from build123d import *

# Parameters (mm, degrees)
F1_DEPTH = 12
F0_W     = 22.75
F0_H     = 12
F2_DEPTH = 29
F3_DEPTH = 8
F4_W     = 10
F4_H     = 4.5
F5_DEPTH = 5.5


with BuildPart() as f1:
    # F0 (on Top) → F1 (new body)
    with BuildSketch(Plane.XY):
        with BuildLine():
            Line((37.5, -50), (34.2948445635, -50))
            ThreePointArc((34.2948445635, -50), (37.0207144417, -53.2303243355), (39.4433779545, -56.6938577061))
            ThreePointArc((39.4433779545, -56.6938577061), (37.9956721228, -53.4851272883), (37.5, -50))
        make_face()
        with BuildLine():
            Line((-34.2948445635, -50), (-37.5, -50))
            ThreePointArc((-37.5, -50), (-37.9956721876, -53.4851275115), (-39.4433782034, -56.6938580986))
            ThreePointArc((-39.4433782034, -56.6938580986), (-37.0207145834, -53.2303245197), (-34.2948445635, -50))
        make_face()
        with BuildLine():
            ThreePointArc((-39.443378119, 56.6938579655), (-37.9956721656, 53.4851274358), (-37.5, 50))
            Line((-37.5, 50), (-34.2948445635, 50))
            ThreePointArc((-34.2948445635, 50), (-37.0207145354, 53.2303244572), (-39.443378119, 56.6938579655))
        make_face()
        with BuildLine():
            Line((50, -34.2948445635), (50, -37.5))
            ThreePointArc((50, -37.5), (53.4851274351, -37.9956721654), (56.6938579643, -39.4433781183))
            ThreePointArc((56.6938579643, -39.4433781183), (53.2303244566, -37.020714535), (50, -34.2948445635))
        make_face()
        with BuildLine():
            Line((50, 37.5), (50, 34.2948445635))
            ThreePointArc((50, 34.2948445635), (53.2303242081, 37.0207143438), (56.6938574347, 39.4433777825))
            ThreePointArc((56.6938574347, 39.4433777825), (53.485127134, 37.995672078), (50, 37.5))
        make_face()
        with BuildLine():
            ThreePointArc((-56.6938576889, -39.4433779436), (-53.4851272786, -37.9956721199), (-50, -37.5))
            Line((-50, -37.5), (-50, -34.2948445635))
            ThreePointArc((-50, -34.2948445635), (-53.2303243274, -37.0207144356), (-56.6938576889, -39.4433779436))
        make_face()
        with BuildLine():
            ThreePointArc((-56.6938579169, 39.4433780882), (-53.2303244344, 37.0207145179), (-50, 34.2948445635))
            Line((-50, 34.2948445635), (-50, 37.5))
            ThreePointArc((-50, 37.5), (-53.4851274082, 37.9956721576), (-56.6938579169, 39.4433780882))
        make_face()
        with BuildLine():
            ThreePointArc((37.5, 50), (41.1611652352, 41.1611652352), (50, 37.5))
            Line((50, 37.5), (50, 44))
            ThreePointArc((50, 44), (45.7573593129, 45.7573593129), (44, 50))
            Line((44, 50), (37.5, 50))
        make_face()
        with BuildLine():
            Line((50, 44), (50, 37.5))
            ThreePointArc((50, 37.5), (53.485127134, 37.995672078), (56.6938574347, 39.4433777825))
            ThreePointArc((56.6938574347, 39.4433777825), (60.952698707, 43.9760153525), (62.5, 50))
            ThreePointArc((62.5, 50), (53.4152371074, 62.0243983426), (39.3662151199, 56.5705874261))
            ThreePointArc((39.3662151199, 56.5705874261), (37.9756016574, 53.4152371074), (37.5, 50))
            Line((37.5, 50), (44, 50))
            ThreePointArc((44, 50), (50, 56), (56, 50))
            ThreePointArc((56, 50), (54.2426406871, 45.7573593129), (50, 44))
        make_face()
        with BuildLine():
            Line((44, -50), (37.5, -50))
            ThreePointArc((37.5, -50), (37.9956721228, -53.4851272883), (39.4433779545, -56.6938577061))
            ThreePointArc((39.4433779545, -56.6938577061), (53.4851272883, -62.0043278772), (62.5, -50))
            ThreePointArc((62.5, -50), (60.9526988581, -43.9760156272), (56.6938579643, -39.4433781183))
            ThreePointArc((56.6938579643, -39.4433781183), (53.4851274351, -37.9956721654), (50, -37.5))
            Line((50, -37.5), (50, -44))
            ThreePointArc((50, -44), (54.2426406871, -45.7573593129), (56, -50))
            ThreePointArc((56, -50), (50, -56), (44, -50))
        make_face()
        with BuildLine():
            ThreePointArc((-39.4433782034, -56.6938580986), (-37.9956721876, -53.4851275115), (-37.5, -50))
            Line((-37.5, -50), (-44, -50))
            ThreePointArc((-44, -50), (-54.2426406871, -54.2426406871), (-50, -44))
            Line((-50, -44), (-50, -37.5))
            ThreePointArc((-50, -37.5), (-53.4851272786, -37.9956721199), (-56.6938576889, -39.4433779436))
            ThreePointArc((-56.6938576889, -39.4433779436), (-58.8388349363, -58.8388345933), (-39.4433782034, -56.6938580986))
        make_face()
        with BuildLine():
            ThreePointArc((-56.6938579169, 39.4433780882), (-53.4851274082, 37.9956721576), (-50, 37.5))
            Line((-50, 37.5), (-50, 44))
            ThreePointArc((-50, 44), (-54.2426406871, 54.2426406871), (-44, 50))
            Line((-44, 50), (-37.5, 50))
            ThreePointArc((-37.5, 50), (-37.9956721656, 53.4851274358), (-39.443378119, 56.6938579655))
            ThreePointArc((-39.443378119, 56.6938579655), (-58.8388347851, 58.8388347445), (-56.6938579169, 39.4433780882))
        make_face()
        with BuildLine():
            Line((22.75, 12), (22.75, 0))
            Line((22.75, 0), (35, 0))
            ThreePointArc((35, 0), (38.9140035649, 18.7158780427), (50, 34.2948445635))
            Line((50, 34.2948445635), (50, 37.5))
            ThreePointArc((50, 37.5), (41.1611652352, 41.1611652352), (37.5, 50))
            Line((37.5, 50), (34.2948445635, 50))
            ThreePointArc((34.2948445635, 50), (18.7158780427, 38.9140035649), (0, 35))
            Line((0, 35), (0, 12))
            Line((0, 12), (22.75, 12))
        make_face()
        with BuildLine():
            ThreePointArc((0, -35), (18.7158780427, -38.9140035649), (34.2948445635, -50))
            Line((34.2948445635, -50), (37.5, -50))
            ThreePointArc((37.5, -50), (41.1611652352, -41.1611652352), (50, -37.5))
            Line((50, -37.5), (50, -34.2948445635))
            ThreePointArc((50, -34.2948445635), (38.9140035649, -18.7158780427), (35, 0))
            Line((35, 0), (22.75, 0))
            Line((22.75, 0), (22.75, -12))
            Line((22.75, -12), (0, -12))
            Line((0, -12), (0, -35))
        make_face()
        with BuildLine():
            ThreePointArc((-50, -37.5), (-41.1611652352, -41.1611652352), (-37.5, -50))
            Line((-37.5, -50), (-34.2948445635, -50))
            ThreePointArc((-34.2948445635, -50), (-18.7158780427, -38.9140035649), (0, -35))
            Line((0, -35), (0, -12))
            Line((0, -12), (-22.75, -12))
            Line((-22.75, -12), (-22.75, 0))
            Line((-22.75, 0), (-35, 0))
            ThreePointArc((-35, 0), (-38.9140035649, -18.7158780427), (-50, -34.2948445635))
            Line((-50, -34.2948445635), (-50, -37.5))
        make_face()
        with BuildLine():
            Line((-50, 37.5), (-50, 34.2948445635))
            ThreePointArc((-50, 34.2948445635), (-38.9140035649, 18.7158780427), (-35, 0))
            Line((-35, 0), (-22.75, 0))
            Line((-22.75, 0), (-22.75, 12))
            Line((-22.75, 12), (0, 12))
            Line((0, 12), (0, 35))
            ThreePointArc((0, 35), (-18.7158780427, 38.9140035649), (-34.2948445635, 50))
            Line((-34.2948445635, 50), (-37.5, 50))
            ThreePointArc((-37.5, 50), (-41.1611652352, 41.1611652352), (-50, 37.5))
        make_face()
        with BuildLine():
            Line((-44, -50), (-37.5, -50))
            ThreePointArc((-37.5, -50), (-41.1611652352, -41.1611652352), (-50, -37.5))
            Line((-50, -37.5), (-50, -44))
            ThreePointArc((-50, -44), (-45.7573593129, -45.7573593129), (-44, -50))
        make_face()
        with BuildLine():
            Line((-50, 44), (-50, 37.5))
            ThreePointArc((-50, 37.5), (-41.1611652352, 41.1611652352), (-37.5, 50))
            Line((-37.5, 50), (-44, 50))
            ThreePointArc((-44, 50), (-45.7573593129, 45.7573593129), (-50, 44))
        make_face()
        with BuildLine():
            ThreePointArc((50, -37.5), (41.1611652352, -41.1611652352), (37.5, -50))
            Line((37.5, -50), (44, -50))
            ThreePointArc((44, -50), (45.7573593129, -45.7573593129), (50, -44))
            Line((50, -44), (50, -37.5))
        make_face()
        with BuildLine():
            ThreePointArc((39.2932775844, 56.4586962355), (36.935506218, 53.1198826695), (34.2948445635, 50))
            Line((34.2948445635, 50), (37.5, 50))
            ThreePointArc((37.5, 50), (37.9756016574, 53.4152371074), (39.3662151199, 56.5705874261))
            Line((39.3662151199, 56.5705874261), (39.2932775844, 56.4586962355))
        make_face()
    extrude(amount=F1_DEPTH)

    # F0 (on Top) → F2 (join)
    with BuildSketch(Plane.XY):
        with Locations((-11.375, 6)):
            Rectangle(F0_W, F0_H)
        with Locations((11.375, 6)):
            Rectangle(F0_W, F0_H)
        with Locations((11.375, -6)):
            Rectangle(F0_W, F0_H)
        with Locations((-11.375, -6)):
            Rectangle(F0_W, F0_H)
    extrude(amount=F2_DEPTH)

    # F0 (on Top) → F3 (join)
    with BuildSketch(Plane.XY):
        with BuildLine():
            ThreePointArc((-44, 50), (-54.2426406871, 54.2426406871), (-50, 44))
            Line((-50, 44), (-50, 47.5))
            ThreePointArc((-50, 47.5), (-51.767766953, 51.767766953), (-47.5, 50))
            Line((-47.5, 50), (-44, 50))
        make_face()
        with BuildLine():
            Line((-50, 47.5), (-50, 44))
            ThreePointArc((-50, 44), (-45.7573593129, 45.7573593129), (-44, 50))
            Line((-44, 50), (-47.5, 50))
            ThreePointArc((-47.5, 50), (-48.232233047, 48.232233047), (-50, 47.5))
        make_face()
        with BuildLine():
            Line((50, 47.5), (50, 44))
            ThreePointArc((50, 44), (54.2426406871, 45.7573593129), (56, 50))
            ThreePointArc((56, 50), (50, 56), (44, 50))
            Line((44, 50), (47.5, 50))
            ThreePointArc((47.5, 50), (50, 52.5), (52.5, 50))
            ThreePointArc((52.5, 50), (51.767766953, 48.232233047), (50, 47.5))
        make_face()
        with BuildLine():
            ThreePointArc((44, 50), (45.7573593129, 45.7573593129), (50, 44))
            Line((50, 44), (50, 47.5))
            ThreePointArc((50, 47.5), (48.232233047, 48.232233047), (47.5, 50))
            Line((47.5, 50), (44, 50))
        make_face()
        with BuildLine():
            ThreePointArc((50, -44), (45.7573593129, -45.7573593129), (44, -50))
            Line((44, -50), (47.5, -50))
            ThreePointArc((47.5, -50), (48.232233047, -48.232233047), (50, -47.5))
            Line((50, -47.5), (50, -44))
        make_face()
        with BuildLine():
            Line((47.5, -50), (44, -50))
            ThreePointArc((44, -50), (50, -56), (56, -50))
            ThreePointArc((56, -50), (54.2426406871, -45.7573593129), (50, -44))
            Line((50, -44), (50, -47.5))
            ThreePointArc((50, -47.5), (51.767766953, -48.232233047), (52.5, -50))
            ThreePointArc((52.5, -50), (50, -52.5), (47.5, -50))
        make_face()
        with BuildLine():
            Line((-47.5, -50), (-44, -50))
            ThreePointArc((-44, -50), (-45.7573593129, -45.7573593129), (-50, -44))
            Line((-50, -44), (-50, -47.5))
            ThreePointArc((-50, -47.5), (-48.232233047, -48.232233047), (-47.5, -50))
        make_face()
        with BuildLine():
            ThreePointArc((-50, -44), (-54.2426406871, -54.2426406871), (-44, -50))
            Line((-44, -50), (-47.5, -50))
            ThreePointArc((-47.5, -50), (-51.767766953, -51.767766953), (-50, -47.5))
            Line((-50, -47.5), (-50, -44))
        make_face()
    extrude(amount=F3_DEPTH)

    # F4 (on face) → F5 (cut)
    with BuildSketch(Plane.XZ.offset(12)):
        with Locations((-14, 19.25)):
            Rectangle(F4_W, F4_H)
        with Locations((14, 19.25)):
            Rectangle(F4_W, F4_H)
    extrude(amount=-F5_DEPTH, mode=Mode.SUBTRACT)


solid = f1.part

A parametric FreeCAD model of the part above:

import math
import FreeCAD as App
import Part
import Sketcher
Q = App.Units.Quantity

doc = App.newDocument("Part")
params = doc.addObject("Spreadsheet::Sheet", "Params")
for row, (alias, value) in enumerate([
    ("sketch1_radius", "6 mm"),
    ("sketch1_radius2", "12.5 mm"),
    ("sketch1_height", "24 mm"),
    ("sketch1_width", "45.5 mm"),
    ("pad1_length", "12 mm"),
    ("sketch2_height", "24 mm"),
    ("sketch2_width", "45.5 mm"),
    ("pad2_length", "29 mm"),
    ("sketch3_radius", "6 mm"),
    ("sketch3_radius2", "2.5 mm"),
    ("pad3_length", "8 mm"),
    ("sketch4_width", "10 mm"),
    ("sketch4_height", "4.5 mm"),
    ("pocket1_length", "5.5 mm"),
], start=1):
    params.set(f"A{row}", alias)
    params.set(f"B{row}", "=" + value)
    params.setAlias(f"B{row}", alias)

body = doc.addObject("PartDesign::Body", "Body")

sketch1 = body.newObject("Sketcher::SketchObject", "Sketch")
sketch1.AttachmentSupport = (doc.getObject("XY_Plane"), [""])
sketch1.MapMode = "FlatFace"
sketch1.addGeometry(Part.ArcOfCircle(Part.Circle(App.Vector(0, -81.7, 0), App.Vector(0, 0, 1), 46.7), math.radians(32.38), math.radians(42.75)), False)
sketch1.addGeometry(Part.ArcOfCircle(Part.Circle(App.Vector(50, -50, 0), App.Vector(0, 0, 1), 12.5), math.radians(-148), math.radians(0)), False)
sketch1.addGeometry(Part.ArcOfCircle(Part.Circle(App.Vector(50, -50, 0), App.Vector(0, 0, 1), 12.5), math.radians(0), math.radians(58)), False)
sketch1.addGeometry(Part.ArcOfCircle(Part.Circle(App.Vector(81.7, 0, 0), App.Vector(0, 0, 1), 46.7), math.radians(-132.75), math.radians(-122.38)), False)
sketch1.addGeometry(Part.ArcOfCircle(Part.Circle(App.Vector(81.7, 0, 0), App.Vector(0, 0, 1), 46.7), math.radians(180), math.radians(227)), False)
sketch1.addGeometry(Part.ArcOfCircle(Part.Circle(App.Vector(81.7, 0, 0), App.Vector(0, 0, 1), 46.7), math.radians(133), math.radians(180)), False)
sketch1.addGeometry(Part.ArcOfCircle(Part.Circle(App.Vector(81.7, 0, 0), App.Vector(0, 0, 1), 46.7), math.radians(122.38), math.radians(132.75)), False)
sketch1.addGeometry(Part.ArcOfCircle(Part.Circle(App.Vector(50, 50, 0), App.Vector(0, 0, 1), 12.5), math.radians(-58), math.radians(0)), False)
sketch1.addGeometry(Part.ArcOfCircle(Part.Circle(App.Vector(50, 50, 0), App.Vector(0, 0, 1), 12.5), math.radians(0), math.radians(148)), False)
sketch1.addGeometry(Part.LineSegment(App.Vector(39.37, 56.57, 0), App.Vector(39.29, 56.46, 0)), False)
sketch1.addGeometry(Part.ArcOfCircle(Part.Circle(App.Vector(0, 81.7, 0), App.Vector(0, 0, 1), 46.7), math.radians(-42.75), math.radians(-32.72)), False)
sketch1.addGeometry(Part.ArcOfCircle(Part.Circle(App.Vector(0, 81.7, 0), App.Vector(0, 0, 1), 46.7), math.radians(-90), math.radians(-43)), False)
sketch1.addGeometry(Part.ArcOfCircle(Part.Circle(App.Vector(0, 81.7, 0), App.Vector(0, 0, 1), 46.7), math.radians(-137), math.radians(-90)), False)
sketch1.addGeometry(Part.ArcOfCircle(Part.Circle(App.Vector(0, 81.7, 0), App.Vector(0, 0, 1), 46.7), math.radians(-147.62), math.radians(-137.25)), False)
sketch1.addGeometry(Part.ArcOfCircle(Part.Circle(App.Vector(-50, 50, 0), App.Vector(0, 0, 1), 12.5), math.radians(32), math.radians(238)), False)
sketch1.addGeometry(Part.ArcOfCircle(Part.Circle(App.Vector(-81.7, 0, 0), App.Vector(0, 0, 1), 46.7), math.radians(47.25), math.radians(57.62)), False)
sketch1.addGeometry(Part.ArcOfCircle(Part.Circle(App.Vector(-81.7, 0, 0), App.Vector(0, 0, 1), 46.7), math.radians(0), math.radians(47)), False)
sketch1.addGeometry(Part.ArcOfCircle(Part.Circle(App.Vector(-81.7, 0, 0), App.Vector(0, 0, 1), 46.7), math.radians(-47), math.radians(0)), False)
sketch1.addGeometry(Part.ArcOfCircle(Part.Circle(App.Vector(-81.7, 0, 0), App.Vector(0, 0, 1), 46.7), math.radians(-57.62), math.radians(-47.25)), False)
sketch1.addGeometry(Part.ArcOfCircle(Part.Circle(App.Vector(-50, -50, 0), App.Vector(0, 0, 1), 12.5), math.radians(122), math.radians(328)), False)
sketch1.addGeometry(Part.ArcOfCircle(Part.Circle(App.Vector(0, -81.7, 0), App.Vector(0, 0, 1), 46.7), math.radians(137.25), math.radians(147.62)), False)
sketch1.addGeometry(Part.ArcOfCircle(Part.Circle(App.Vector(0, -81.7, 0), App.Vector(0, 0, 1), 46.7), math.radians(90), math.radians(137)), False)
sketch1.addGeometry(Part.ArcOfCircle(Part.Circle(App.Vector(0, -81.7, 0), App.Vector(0, 0, 1), 46.7), math.radians(43), math.radians(90)), False)
sketch1.addGeometry(Part.LineSegment(App.Vector(22.75, 12, 0), App.Vector(22.75, -12, 0)), False)
sketch1.addGeometry(Part.LineSegment(App.Vector(22.75, -12, 0), App.Vector(-22.75, -12, 0)), False)
sketch1.addGeometry(Part.LineSegment(App.Vector(-22.75, -12, 0), App.Vector(-22.75, 12, 0)), False)
sketch1.addGeometry(Part.LineSegment(App.Vector(-22.75, 12, 0), App.Vector(22.75, 12, 0)), False)
sketch1.addGeometry(Part.ArcOfCircle(Part.Circle(App.Vector(50, -50, 0), App.Vector(0, 0, 1), 6), math.radians(0), math.radians(90)), False)
sketch1.addGeometry(Part.ArcOfCircle(Part.Circle(App.Vector(50, -50, 0), App.Vector(0, 0, 1), 6), math.radians(180), math.radians(360)), False)
sketch1.addGeometry(Part.ArcOfCircle(Part.Circle(App.Vector(50, -50, 0), App.Vector(0, 0, 1), 6), math.radians(90), math.radians(180)), False)
sketch1.addGeometry(Part.ArcOfCircle(Part.Circle(App.Vector(50, 50, 0), App.Vector(0, 0, 1), 6), math.radians(0), math.radians(180)), False)
sketch1.addGeometry(Part.ArcOfCircle(Part.Circle(App.Vector(50, 50, 0), App.Vector(0, 0, 1), 6), math.radians(-90), math.radians(0)), False)
sketch1.addGeometry(Part.ArcOfCircle(Part.Circle(App.Vector(50, 50, 0), App.Vector(0, 0, 1), 6), math.radians(180), math.radians(270)), False)
sketch1.addGeometry(Part.ArcOfCircle(Part.Circle(App.Vector(-50, -50, 0), App.Vector(0, 0, 1), 6), math.radians(90), math.radians(360)), False)
sketch1.addGeometry(Part.ArcOfCircle(Part.Circle(App.Vector(-50, -50, 0), App.Vector(0, 0, 1), 6), math.radians(0), math.radians(90)), False)
sketch1.addGeometry(Part.ArcOfCircle(Part.Circle(App.Vector(-50, 50, 0), App.Vector(0, 0, 1), 6), math.radians(0), math.radians(270)), False)
sketch1.addGeometry(Part.ArcOfCircle(Part.Circle(App.Vector(-50, 50, 0), App.Vector(0, 0, 1), 6), math.radians(-90), math.radians(0)), False)
sketch1.addConstraint(Sketcher.Constraint("Tangent", 0, 1, 1, 1))
sketch1.addConstraint(Sketcher.Constraint("Tangent", 1, 2, 2, 1))
sketch1.addConstraint(Sketcher.Constraint("Tangent", 2, 2, 3, 2))
sketch1.addConstraint(Sketcher.Constraint("Tangent", 3, 1, 4, 2))
sketch1.addConstraint(Sketcher.Constraint("Tangent", 4, 1, 5, 2))
sketch1.addConstraint(Sketcher.Constraint("Tangent", 5, 1, 6, 2))
sketch1.addConstraint(Sketcher.Constraint("Tangent", 6, 1, 7, 1))
sketch1.addConstraint(Sketcher.Constraint("Tangent", 7, 2, 8, 1))
sketch1.addConstraint(Sketcher.Constraint("Coincident", 8, 2, 9, 1))
sketch1.addConstraint(Sketcher.Constraint("Coincident", 9, 2, 10, 2))
sketch1.addConstraint(Sketcher.Constraint("Tangent", 10, 1, 11, 2))
sketch1.addConstraint(Sketcher.Constraint("Tangent", 11, 1, 12, 2))
sketch1.addConstraint(Sketcher.Constraint("Tangent", 12, 1, 13, 2))
sketch1.addConstraint(Sketcher.Constraint("Tangent", 13, 1, 14, 1))
sketch1.addConstraint(Sketcher.Constraint("Tangent", 14, 2, 15, 2))
sketch1.addConstraint(Sketcher.Constraint("Tangent", 15, 1, 16, 2))
sketch1.addConstraint(Sketcher.Constraint("Tangent", 16, 1, 17, 2))
sketch1.addConstraint(Sketcher.Constraint("Tangent", 17, 1, 18, 2))
sketch1.addConstraint(Sketcher.Constraint("Tangent", 18, 1, 19, 1))
sketch1.addConstraint(Sketcher.Constraint("Tangent", 19, 2, 20, 2))
sketch1.addConstraint(Sketcher.Constraint("Tangent", 20, 1, 21, 2))
sketch1.addConstraint(Sketcher.Constraint("Tangent", 21, 1, 22, 2))
sketch1.addConstraint(Sketcher.Constraint("Tangent", 22, 1, 0, 2))
sketch1.addConstraint(Sketcher.Constraint("Coincident", 23, 2, 24, 1))
sketch1.addConstraint(Sketcher.Constraint("Coincident", 24, 2, 25, 1))
sketch1.addConstraint(Sketcher.Constraint("Coincident", 25, 2, 26, 1))
sketch1.addConstraint(Sketcher.Constraint("Coincident", 26, 2, 23, 1))
sketch1.addConstraint(Sketcher.Constraint("Tangent", 27, 1, 28, 2))
sketch1.addConstraint(Sketcher.Constraint("Tangent", 28, 1, 29, 2))
sketch1.addConstraint(Sketcher.Constraint("Tangent", 29, 1, 27, 2))
sketch1.addConstraint(Sketcher.Constraint("Tangent", 30, 1, 31, 2))
sketch1.addConstraint(Sketcher.Constraint("Tangent", 31, 1, 32, 2))
sketch1.addConstraint(Sketcher.Constraint("Tangent", 32, 1, 30, 2))
sketch1.addConstraint(Sketcher.Constraint("Tangent", 33, 1, 34, 2))
sketch1.addConstraint(Sketcher.Constraint("Coincident", 34, 1, 33, 2))
sketch1.addConstraint(Sketcher.Constraint("Tangent", 35, 1, 36, 2))
sketch1.addConstraint(Sketcher.Constraint("Coincident", 36, 1, 35, 2))
sketch1.addConstraint(Sketcher.Constraint("Vertical", 23))
sketch1.addConstraint(Sketcher.Constraint("Horizontal", 24))
sketch1.addConstraint(Sketcher.Constraint("Vertical", 25))
sketch1.addConstraint(Sketcher.Constraint("Horizontal", 26))
sketch1.addConstraint(Sketcher.Constraint("Coincident", 5, 3, 3, 3))
sketch1.addConstraint(Sketcher.Constraint("Coincident", 12, 3, 10, 3))
sketch1.addConstraint(Sketcher.Constraint("Coincident", 17, 3, 15, 3))
sketch1.addConstraint(Sketcher.Constraint("Coincident", 20, 3, 0, 3))
sketch1.addConstraint(Sketcher.Constraint("Coincident", 27, 3, 1, 3))
sketch1.addConstraint(Sketcher.Constraint("Coincident", 30, 3, 7, 3))
sketch1.addConstraint(Sketcher.Constraint("Coincident", 33, 3, 19, 3))
sketch1.addConstraint(Sketcher.Constraint("Coincident", 35, 3, 14, 3))
sketch1.addConstraint(Sketcher.Constraint("Equal", 1, 2))
sketch1.addConstraint(Sketcher.Constraint("Equal", 0, 3))
sketch1.addConstraint(Sketcher.Constraint("Equal", 5, 6))
sketch1.addConstraint(Sketcher.Constraint("Equal", 2, 7))
sketch1.addConstraint(Sketcher.Constraint("Equal", 7, 8))
sketch1.addConstraint(Sketcher.Constraint("Equal", 6, 10))
sketch1.addConstraint(Sketcher.Constraint("Equal", 12, 13))
sketch1.addConstraint(Sketcher.Constraint("Equal", 8, 14))
sketch1.addConstraint(Sketcher.Constraint("Equal", 13, 15))
sketch1.addConstraint(Sketcher.Constraint("Equal", 17, 18))
sketch1.addConstraint(Sketcher.Constraint("Equal", 14, 19))
sketch1.addConstraint(Sketcher.Constraint("Equal", 18, 20))
sketch1.addConstraint(Sketcher.Constraint("Equal", 29, 30))
sketch1.addConstraint(Sketcher.Constraint("Equal", 32, 33))
sketch1.addConstraint(Sketcher.Constraint("Equal", 34, 35))
sketch1.addConstraint(Sketcher.Constraint("Symmetric", 0, 3, 10, 3, -1, 1))
sketch1.addConstraint(Sketcher.Constraint("Symmetric", 3, 3, 15, 3, -1, 1))
sketch1.addConstraint(Sketcher.Constraint("Symmetric", 23, 2, 25, 2, -1, 1))
sketch1.addConstraint(Sketcher.Constraint("Symmetric", 31, 1, 33, 1, -1, 1))
sketch1.addConstraint(Sketcher.Constraint("Symmetric", 7, 3, 14, 3, -2))
sketch1.addConstraint(Sketcher.Constraint("PointOnObject", 4, 1, -1))
sketch1.addConstraint(Sketcher.Constraint("PointOnObject", 11, 1, -2))
sketch1.addConstraint(Sketcher.Constraint("PointOnObject", 16, 1, -1))
sketch1.addConstraint(Sketcher.Constraint("PointOnObject", 21, 1, -2))
sketch1.addConstraint(Sketcher.Constraint("Horizontal", 34, 3, 1, 2))
sketch1.addConstraint(Sketcher.Constraint("Horizontal", 36, 3, 7, 2))
sketch1.addConstraint(Sketcher.Constraint("Horizontal", 7, 2, 10, 1))
sketch1.addConstraint(Sketcher.Constraint("Horizontal", 10, 1, 12, 1))
sketch1.addConstraint(Sketcher.Constraint("Horizontal", 5, 1, 15, 1))
sketch1.addConstraint(Sketcher.Constraint("Horizontal", 3, 1, 17, 1))
sketch1.addConstraint(Sketcher.Constraint("Horizontal", 1, 2, 20, 1))
sketch1.addConstraint(Sketcher.Constraint("Horizontal", 20, 1, 22, 1))
sketch1.addConstraint(Sketcher.Constraint("Horizontal", 22, 1, 27, 1))
sketch1.addConstraint(Sketcher.Constraint("Horizontal", 27, 1, 28, 1))
sketch1.addConstraint(Sketcher.Constraint("Horizontal", 12, 1, 30, 1))
sketch1.addConstraint(Sketcher.Constraint("Horizontal", 30, 1, 32, 1))
sketch1.addConstraint(Sketcher.Constraint("Horizontal", 28, 1, 34, 1))
sketch1.addConstraint(Sketcher.Constraint("Horizontal", 32, 1, 35, 1))
sketch1.addConstraint(Sketcher.Constraint("Vertical", 32, 3, 3, 1))
sketch1.addConstraint(Sketcher.Constraint("Vertical", 3, 1, 5, 1))
sketch1.addConstraint(Sketcher.Constraint("Vertical", 5, 1, 29, 1))
sketch1.addConstraint(Sketcher.Constraint("Vertical", 29, 1, 31, 1))
sketch1.addConstraint(Sketcher.Constraint("Vertical", 33, 1, 36, 1))
sketch1.addConstraint(Sketcher.Constraint("Radius", 27, Q("6 mm")))
sketch1.addConstraint(Sketcher.Constraint("Radius", 1, Q("12.5 mm")))
sketch1.addConstraint(Sketcher.Constraint("DistanceY", 23, 2, 23, 1, Q("24 mm")))
sketch1.addConstraint(Sketcher.Constraint("DistanceX", 24, 2, 24, 1, Q("45.5 mm")))
sketch1.addConstraint(Sketcher.Constraint("DistanceX", -1, 1, 1, 3, Q("50 mm")))
sketch1.addConstraint(Sketcher.Constraint("DistanceY", 1, 3, -1, 1, Q("50 mm")))
sketch1.addConstraint(Sketcher.Constraint("DistanceX", -1, 1, 4, 1, Q("35 mm")))
sketch1.addConstraint(Sketcher.Constraint("Distance", 9, Q("0.133565 mm")))
sketch1.addConstraint(Sketcher.Constraint("DistanceX", -1, 1, 8, 2, Q("39.366215 mm")))
sketch1.setExpression("Constraints[92]", "Params.sketch1_radius")
sketch1.setExpression("Constraints[93]", "Params.sketch1_radius2")
sketch1.setExpression("Constraints[94]", "Params.sketch1_height")
sketch1.setExpression("Constraints[95]", "Params.sketch1_width")
pad1 = body.newObject("PartDesign::Pad", "Pad")
pad1.Profile = sketch1
pad1.setExpression("Length", "Params.pad1_length")

sketch2 = body.newObject("Sketcher::SketchObject", "Sketch001")
sketch2.AttachmentSupport = (doc.getObject("XY_Plane"), [""])
sketch2.MapMode = "FlatFace"
sketch2.addGeometry(Part.LineSegment(App.Vector(-23, 12, 0), App.Vector(-23, -12, 0)), False)
sketch2.addGeometry(Part.LineSegment(App.Vector(-23, -12, 0), App.Vector(23, -12, 0)), False)
sketch2.addGeometry(Part.LineSegment(App.Vector(23, -12, 0), App.Vector(23, 12, 0)), False)
sketch2.addGeometry(Part.LineSegment(App.Vector(23, 12, 0), App.Vector(-23, 12, 0)), False)
sketch2.addConstraint(Sketcher.Constraint("Coincident", 0, 2, 1, 1))
sketch2.addConstraint(Sketcher.Constraint("Coincident", 1, 2, 2, 1))
sketch2.addConstraint(Sketcher.Constraint("Coincident", 2, 2, 3, 1))
sketch2.addConstraint(Sketcher.Constraint("Coincident", 3, 2, 0, 1))
sketch2.addConstraint(Sketcher.Constraint("Vertical", 0))
sketch2.addConstraint(Sketcher.Constraint("Horizontal", 1))
sketch2.addConstraint(Sketcher.Constraint("Vertical", 2))
sketch2.addConstraint(Sketcher.Constraint("Horizontal", 3))
sketch2.addConstraint(Sketcher.Constraint("Symmetric", 0, 2, 2, 2, -1, 1))
sketch2.addConstraint(Sketcher.Constraint("DistanceY", 0, 2, 0, 1, Q("24 mm")))
sketch2.addConstraint(Sketcher.Constraint("DistanceX", 1, 1, 1, 2, Q("45.5 mm")))
sketch2.setExpression("Constraints[9]", "Params.sketch2_height")
sketch2.setExpression("Constraints[10]", "Params.sketch2_width")
pad2 = body.newObject("PartDesign::Pad", "Pad001")
pad2.Profile = sketch2
pad2.setExpression("Length", "Params.pad2_length")

sketch3 = body.newObject("Sketcher::SketchObject", "Sketch002")
sketch3.AttachmentSupport = (doc.getObject("XY_Plane"), [""])
sketch3.MapMode = "FlatFace"
sketch3.addGeometry(Part.ArcOfCircle(Part.Circle(App.Vector(-50, 50, 0), App.Vector(0, 0, 1), 6), math.radians(0), math.radians(270)), False)
sketch3.addGeometry(Part.ArcOfCircle(Part.Circle(App.Vector(-50, 50, 0), App.Vector(0, 0, 1), 6), math.radians(-90), math.radians(0)), False)
sketch3.addGeometry(Part.ArcOfCircle(Part.Circle(App.Vector(-50, 50, 0), App.Vector(0, 0, 1), 2.5), math.radians(0), math.radians(270)), False)
sketch3.addGeometry(Part.ArcOfCircle(Part.Circle(App.Vector(-50, 50, 0), App.Vector(0, 0, 1), 2.5), math.radians(-90), math.radians(0)), False)
sketch3.addGeometry(Part.ArcOfCircle(Part.Circle(App.Vector(50, 50, 0), App.Vector(0, 0, 1), 6), math.radians(-90), math.radians(0)), False)
sketch3.addGeometry(Part.ArcOfCircle(Part.Circle(App.Vector(50, 50, 0), App.Vector(0, 0, 1), 6), math.radians(0), math.radians(180)), False)
sketch3.addGeometry(Part.ArcOfCircle(Part.Circle(App.Vector(50, 50, 0), App.Vector(0, 0, 1), 6), math.radians(180), math.radians(270)), False)
sketch3.addGeometry(Part.ArcOfCircle(Part.Circle(App.Vector(50, 50, 0), App.Vector(0, 0, 1), 2.5), math.radians(0), math.radians(180)), False)
sketch3.addGeometry(Part.ArcOfCircle(Part.Circle(App.Vector(50, 50, 0), App.Vector(0, 0, 1), 2.5), math.radians(-90), math.radians(0)), False)
sketch3.addGeometry(Part.ArcOfCircle(Part.Circle(App.Vector(50, 50, 0), App.Vector(0, 0, 1), 2.5), math.radians(180), math.radians(270)), False)
sketch3.addGeometry(Part.ArcOfCircle(Part.Circle(App.Vector(50, -50, 0), App.Vector(0, 0, 1), 6), math.radians(90), math.radians(180)), False)
sketch3.addGeometry(Part.ArcOfCircle(Part.Circle(App.Vector(50, -50, 0), App.Vector(0, 0, 1), 6), math.radians(180), math.radians(360)), False)
sketch3.addGeometry(Part.ArcOfCircle(Part.Circle(App.Vector(50, -50, 0), App.Vector(0, 0, 1), 6), math.radians(0), math.radians(90)), False)
sketch3.addGeometry(Part.ArcOfCircle(Part.Circle(App.Vector(50, -50, 0), App.Vector(0, 0, 1), 2.5), math.radians(90), math.radians(180)), False)
sketch3.addGeometry(Part.ArcOfCircle(Part.Circle(App.Vector(50, -50, 0), App.Vector(0, 0, 1), 2.5), math.radians(0), math.radians(90)), False)
sketch3.addGeometry(Part.ArcOfCircle(Part.Circle(App.Vector(50, -50, 0), App.Vector(0, 0, 1), 2.5), math.radians(180), math.radians(360)), False)
sketch3.addGeometry(Part.ArcOfCircle(Part.Circle(App.Vector(-50, -50, 0), App.Vector(0, 0, 1), 6), math.radians(0), math.radians(90)), False)
sketch3.addGeometry(Part.ArcOfCircle(Part.Circle(App.Vector(-50, -50, 0), App.Vector(0, 0, 1), 6), math.radians(90), math.radians(360)), False)
sketch3.addGeometry(Part.ArcOfCircle(Part.Circle(App.Vector(-50, -50, 0), App.Vector(0, 0, 1), 2.5), math.radians(0), math.radians(90)), False)
sketch3.addGeometry(Part.ArcOfCircle(Part.Circle(App.Vector(-50, -50, 0), App.Vector(0, 0, 1), 2.5), math.radians(90), math.radians(360)), False)
sketch3.addConstraint(Sketcher.Constraint("Tangent", 0, 1, 1, 2))
sketch3.addConstraint(Sketcher.Constraint("Coincident", 1, 1, 0, 2))
sketch3.addConstraint(Sketcher.Constraint("Tangent", 2, 1, 3, 2))
sketch3.addConstraint(Sketcher.Constraint("Coincident", 3, 1, 2, 2))
sketch3.addConstraint(Sketcher.Constraint("Tangent", 4, 2, 5, 1))
sketch3.addConstraint(Sketcher.Constraint("Tangent", 5, 2, 6, 1))
sketch3.addConstraint(Sketcher.Constraint("Tangent", 6, 2, 4, 1))
sketch3.addConstraint(Sketcher.Constraint("Tangent", 7, 1, 8, 2))
sketch3.addConstraint(Sketcher.Constraint("Tangent", 8, 1, 9, 2))
sketch3.addConstraint(Sketcher.Constraint("Tangent", 9, 1, 7, 2))
sketch3.addConstraint(Sketcher.Constraint("Tangent", 10, 2, 11, 1))
sketch3.addConstraint(Sketcher.Constraint("Tangent", 11, 2, 12, 1))
sketch3.addConstraint(Sketcher.Constraint("Tangent", 12, 2, 10, 1))
sketch3.addConstraint(Sketcher.Constraint("Tangent", 13, 1, 14, 2))
sketch3.addConstraint(Sketcher.Constraint("Tangent", 14, 1, 15, 2))
sketch3.addConstraint(Sketcher.Constraint("Tangent", 15, 1, 13, 2))
sketch3.addConstraint(Sketcher.Constraint("Tangent", 16, 1, 17, 2))
sketch3.addConstraint(Sketcher.Constraint("Coincident", 17, 1, 16, 2))
sketch3.addConstraint(Sketcher.Constraint("Tangent", 18, 1, 19, 2))
sketch3.addConstraint(Sketcher.Constraint("Coincident", 19, 1, 18, 2))
sketch3.addConstraint(Sketcher.Constraint("Coincident", 2, 3, 0, 3))
sketch3.addConstraint(Sketcher.Constraint("Coincident", 7, 3, 4, 3))
sketch3.addConstraint(Sketcher.Constraint("Coincident", 13, 3, 10, 3))
sketch3.addConstraint(Sketcher.Constraint("Coincident", 18, 3, 16, 3))
sketch3.addConstraint(Sketcher.Constraint("Equal", 1, 4))
sketch3.addConstraint(Sketcher.Constraint("Equal", 3, 7))
sketch3.addConstraint(Sketcher.Constraint("Equal", 6, 10))
sketch3.addConstraint(Sketcher.Constraint("Equal", 9, 13))
sketch3.addConstraint(Sketcher.Constraint("Equal", 12, 16))
sketch3.addConstraint(Sketcher.Constraint("Equal", 15, 18))
sketch3.addConstraint(Sketcher.Constraint("Symmetric", 0, 3, 10, 3, -1, 1))
sketch3.addConstraint(Sketcher.Constraint("Symmetric", 4, 3, 16, 3, -1, 1))
sketch3.addConstraint(Sketcher.Constraint("Symmetric", 0, 3, 4, 3, -2))
sketch3.addConstraint(Sketcher.Constraint("Horizontal", 9, 3, 0, 1))
sketch3.addConstraint(Sketcher.Constraint("Horizontal", 0, 1, 2, 1))
sketch3.addConstraint(Sketcher.Constraint("Horizontal", 2, 1, 4, 2))
sketch3.addConstraint(Sketcher.Constraint("Horizontal", 4, 2, 5, 2))
sketch3.addConstraint(Sketcher.Constraint("Horizontal", 5, 2, 7, 1))
sketch3.addConstraint(Sketcher.Constraint("Horizontal", 7, 1, 9, 1))
sketch3.addConstraint(Sketcher.Constraint("Horizontal", 19, 3, 10, 2))
sketch3.addConstraint(Sketcher.Constraint("Horizontal", 10, 2, 11, 2))
sketch3.addConstraint(Sketcher.Constraint("Horizontal", 11, 2, 14, 1))
sketch3.addConstraint(Sketcher.Constraint("Horizontal", 14, 1, 15, 1))
sketch3.addConstraint(Sketcher.Constraint("Horizontal", 15, 1, 16, 1))
sketch3.addConstraint(Sketcher.Constraint("Horizontal", 16, 1, 18, 1))
sketch3.addConstraint(Sketcher.Constraint("Vertical", 19, 3, 1, 1))
sketch3.addConstraint(Sketcher.Constraint("Vertical", 1, 1, 3, 1))
sketch3.addConstraint(Sketcher.Constraint("Vertical", 15, 3, 6, 2))
sketch3.addConstraint(Sketcher.Constraint("Vertical", 6, 2, 8, 1))
sketch3.addConstraint(Sketcher.Constraint("Vertical", 8, 1, 12, 2))
sketch3.addConstraint(Sketcher.Constraint("Vertical", 12, 2, 13, 1))
sketch3.addConstraint(Sketcher.Constraint("Vertical", 3, 1, 17, 1))
sketch3.addConstraint(Sketcher.Constraint("Vertical", 17, 1, 19, 1))
sketch3.addConstraint(Sketcher.Constraint("Radius", 0, Q("6 mm")))
sketch3.addConstraint(Sketcher.Constraint("Radius", 2, Q("2.5 mm")))
sketch3.addConstraint(Sketcher.Constraint("DistanceX", 0, 3, -1, 1, Q("50 mm")))
sketch3.addConstraint(Sketcher.Constraint("DistanceY", -1, 1, 0, 3, Q("50 mm")))
sketch3.setExpression("Constraints[53]", "Params.sketch3_radius")
sketch3.setExpression("Constraints[54]", "Params.sketch3_radius2")
pad3 = body.newObject("PartDesign::Pad", "Pad002")
pad3.Profile = sketch3
pad3.setExpression("Length", "Params.pad3_length")

sketch4 = body.newObject("Sketcher::SketchObject", "Sketch003")
sketch4.AttachmentSupport = (doc.getObject("XZ_Plane"), [""])
sketch4.MapMode = "FlatFace"
sketch4.AttachmentOffset = App.Placement(App.Vector(0, 0, 12), App.Rotation())
sketch4.addGeometry(Part.LineSegment(App.Vector(-19, 21.5, 0), App.Vector(-19, 17, 0)), False)
sketch4.addGeometry(Part.LineSegment(App.Vector(-19, 17, 0), App.Vector(-9, 17, 0)), False)
sketch4.addGeometry(Part.LineSegment(App.Vector(-9, 17, 0), App.Vector(-9, 21.5, 0)), False)
sketch4.addGeometry(Part.LineSegment(App.Vector(-9, 21.5, 0), App.Vector(-19, 21.5, 0)), False)
sketch4.addGeometry(Part.LineSegment(App.Vector(9, 21.5, 0), App.Vector(9, 17, 0)), False)
sketch4.addGeometry(Part.LineSegment(App.Vector(9, 17, 0), App.Vector(19, 17, 0)), False)
sketch4.addGeometry(Part.LineSegment(App.Vector(19, 17, 0), App.Vector(19, 21.5, 0)), False)
sketch4.addGeometry(Part.LineSegment(App.Vector(19, 21.5, 0), App.Vector(9, 21.5, 0)), False)
sketch4.addConstraint(Sketcher.Constraint("Coincident", 0, 2, 1, 1))
sketch4.addConstraint(Sketcher.Constraint("Coincident", 1, 2, 2, 1))
sketch4.addConstraint(Sketcher.Constraint("Coincident", 2, 2, 3, 1))
sketch4.addConstraint(Sketcher.Constraint("Coincident", 3, 2, 0, 1))
sketch4.addConstraint(Sketcher.Constraint("Coincident", 4, 2, 5, 1))
sketch4.addConstraint(Sketcher.Constraint("Coincident", 5, 2, 6, 1))
sketch4.addConstraint(Sketcher.Constraint("Coincident", 6, 2, 7, 1))
sketch4.addConstraint(Sketcher.Constraint("Coincident", 7, 2, 4, 1))
sketch4.addConstraint(Sketcher.Constraint("Vertical", 0))
sketch4.addConstraint(Sketcher.Constraint("Horizontal", 1))
sketch4.addConstraint(Sketcher.Constraint("Vertical", 2))
sketch4.addConstraint(Sketcher.Constraint("Horizontal", 3))
sketch4.addConstraint(Sketcher.Constraint("Vertical", 4))
sketch4.addConstraint(Sketcher.Constraint("Horizontal", 5))
sketch4.addConstraint(Sketcher.Constraint("Vertical", 6))
sketch4.addConstraint(Sketcher.Constraint("Horizontal", 7))
sketch4.addConstraint(Sketcher.Constraint("Symmetric", 1, 2, 4, 2, -2))
sketch4.addConstraint(Sketcher.Constraint("Symmetric", 3, 2, 6, 2, -2))
sketch4.addConstraint(Sketcher.Constraint("DistanceX", 1, 1, 1, 2, Q("10 mm")))
sketch4.addConstraint(Sketcher.Constraint("DistanceY", 0, 2, 0, 1, Q("4.5 mm")))
sketch4.addConstraint(Sketcher.Constraint("DistanceX", 0, 2, -1, 1, Q("19 mm")))
sketch4.addConstraint(Sketcher.Constraint("DistanceY", -1, 1, 0, 2, Q("17 mm")))
sketch4.setExpression("Constraints[18]", "Params.sketch4_width")
sketch4.setExpression("Constraints[19]", "Params.sketch4_height")
pocket1 = body.newObject("PartDesign::Pocket", "Pocket")
pocket1.Profile = sketch4
pocket1.setExpression("Length", "Params.pocket1_length")

doc.recompute()
